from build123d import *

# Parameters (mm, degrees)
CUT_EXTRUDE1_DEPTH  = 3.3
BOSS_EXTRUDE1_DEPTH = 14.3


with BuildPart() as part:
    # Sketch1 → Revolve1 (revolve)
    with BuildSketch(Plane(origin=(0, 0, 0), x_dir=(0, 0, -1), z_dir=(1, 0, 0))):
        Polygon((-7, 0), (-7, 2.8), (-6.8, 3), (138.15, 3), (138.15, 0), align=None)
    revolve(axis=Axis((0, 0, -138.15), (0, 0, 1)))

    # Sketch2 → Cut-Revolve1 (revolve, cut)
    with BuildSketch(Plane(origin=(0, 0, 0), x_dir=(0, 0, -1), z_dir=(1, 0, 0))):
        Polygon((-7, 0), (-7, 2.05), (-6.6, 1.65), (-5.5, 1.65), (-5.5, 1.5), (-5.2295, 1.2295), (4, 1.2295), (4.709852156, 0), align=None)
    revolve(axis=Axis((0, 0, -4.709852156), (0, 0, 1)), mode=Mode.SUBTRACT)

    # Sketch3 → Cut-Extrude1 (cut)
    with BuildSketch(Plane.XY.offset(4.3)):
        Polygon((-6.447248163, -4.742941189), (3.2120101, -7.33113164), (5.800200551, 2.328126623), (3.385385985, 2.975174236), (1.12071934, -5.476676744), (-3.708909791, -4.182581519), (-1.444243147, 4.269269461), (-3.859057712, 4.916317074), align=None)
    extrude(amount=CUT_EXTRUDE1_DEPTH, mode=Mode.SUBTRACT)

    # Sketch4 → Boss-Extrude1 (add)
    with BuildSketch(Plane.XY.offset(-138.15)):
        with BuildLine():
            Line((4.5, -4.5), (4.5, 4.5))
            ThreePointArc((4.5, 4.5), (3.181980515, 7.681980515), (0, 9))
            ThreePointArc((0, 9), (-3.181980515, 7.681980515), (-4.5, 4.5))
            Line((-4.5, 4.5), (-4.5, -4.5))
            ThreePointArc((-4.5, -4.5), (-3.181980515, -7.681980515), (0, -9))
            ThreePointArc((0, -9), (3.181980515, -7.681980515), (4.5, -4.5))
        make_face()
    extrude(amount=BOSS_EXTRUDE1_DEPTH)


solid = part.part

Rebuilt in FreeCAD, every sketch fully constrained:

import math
import FreeCAD as App
import Part
import Sketcher
Q = App.Units.Quantity


def add_polygon(sketch, points):
    """Adds a closed chain of lines whose ends are joined by coincident constraints."""
    first, n = sketch.GeometryCount, len(points)
    for a, b in zip(points, points[1:] + points[:1]):
        sketch.addGeometry(Part.LineSegment(App.Vector(*a, 0), App.Vector(*b, 0)), False)
    for i in range(n):
        sketch.addConstraint(Sketcher.Constraint("Coincident", first + i, 2, first + (i + 1) % n, 1))

doc = App.newDocument("Part")
params = doc.addObject("Spreadsheet::Sheet", "Params")
for row, (alias, value) in enumerate([
    ("sketch1_width", "3 mm"),
    ("sketch1_width2", "2.8 mm"),
    ("sketch1_height", "145.15 mm"),
    ("revolution_angle", "360 deg"),
    ("sketch2_height", "1.1 mm"),
    ("sketch2_width", "2.05 mm"),
    ("sketch2_width2", "0.15 mm"),
    ("groove_angle", "360 deg"),
    ("sketch3_length", "10 mm"),
    ("sketch3_length2", "5 mm"),
    ("sketch3_length3", "8.75 mm"),
    ("pocket1_length", "3.3 mm"),
    ("sketch4_radius", "4.5 mm"),
    ("sketch4_height", "9 mm"),
    ("pad1_length", "14.3 mm"),
], start=1):
    params.set(f"A{row}", alias)
    params.set(f"B{row}", "=" + value)
    params.setAlias(f"B{row}", alias)

body = doc.addObject("PartDesign::Body", "Body")

# Sketch on YZ plane
sketch1 = body.newObject("Sketcher::SketchObject", "Sketch")
sketch1.AttachmentSupport = (doc.getObject("YZ_Plane"), [""])
sketch1.MapMode = "FlatFace"
add_polygon(sketch1, [(2.8, 7), (0, 7), (0, -138.15), (3, -138.15), (3, 6.8)])  # lines 0-4
sketch1.addConstraint(Sketcher.Constraint("Horizontal", 0))
sketch1.addConstraint(Sketcher.Constraint("Vertical", 1))
sketch1.addConstraint(Sketcher.Constraint("Horizontal", 2))
sketch1.addConstraint(Sketcher.Constraint("Vertical", 3))
sketch1.addConstraint(Sketcher.Constraint("PointOnObject", 0, 2, -2))
sketch1.addConstraint(Sketcher.Constraint("DistanceX", 2, 1, 2, 2, 3.0))
sketch1.addConstraint(Sketcher.Constraint("Angle", 4, Q("135 deg")))
sketch1.addConstraint(Sketcher.Constraint("DistanceX", 0, 2, 0, 1, 2.8))
sketch1.addConstraint(Sketcher.Constraint("DistanceY", -1, 1, 0, 2, 7.0))
sketch1.addConstraint(Sketcher.Constraint("DistanceY", 1, 2, 1, 1, 145.15))
sketch1.setExpression("Constraints[10]", "Params.sketch1_width")
sketch1.setExpression("Constraints[12]", "Params.sketch1_width2")
sketch1.setExpression("Constraints[14]", "Params.sketch1_height")
revolution = body.newObject("PartDesign::Revolution", "Revolution")
revolution.Profile = sketch1
revolution.ReferenceAxis = (sketch1, ["V_Axis"])
revolution.setExpression("Angle", "Params.revolution_angle")

# Sketch on YZ plane
sketch2 = body.newObject("Sketcher::SketchObject", "Sketch001")
sketch2.AttachmentSupport = (doc.getObject("YZ_Plane"), [""])
sketch2.MapMode = "FlatFace"
add_polygon(sketch2, [(2.05, 7), (0, 7), (0, -4.71), (1.23, -4), (1.23, 5.23), (1.5, 5.5), (1.65, 5.5), (1.65, 6.6)])  # lines 0-7
sketch2.addConstraint(Sketcher.Constraint("Horizontal", 0))
sketch2.addConstraint(Sketcher.Constraint("Vertical", 1))
sketch2.addConstraint(Sketcher.Constraint("Vertical", 3))
sketch2.addConstraint(Sketcher.Constraint("Horizontal", 5))
sketch2.addConstraint(Sketcher.Constraint("Vertical", 6))
sketch2.addConstraint(Sketcher.Constraint("PointOnObject", 0, 2, -2))
sketch2.addConstraint(Sketcher.Constraint("Parallel", 4, 7))
sketch2.addConstraint(Sketcher.Constraint("Angle", 2, Q("30 deg")))
sketch2.addConstraint(Sketcher.Constraint("Angle", 4, Q("45 deg")))
sketch2.addConstraint(Sketcher.Constraint("DistanceY", 6, 1, 6, 2, 1.1))
sketch2.addConstraint(Sketcher.Constraint("DistanceY", -1, 1, 0, 2, 7.0))
sketch2.addConstraint(Sketcher.Constraint("DistanceY", 2, 2, -1, 1, 4.0))
sketch2.addConstraint(Sketcher.Constraint("DistanceX", 0, 2, 0, 1, 2.05))
sketch2.addConstraint(Sketcher.Constraint("DistanceX", 5, 1, 5, 2, 0.15))
sketch2.addConstraint(Sketcher.Constraint("DistanceX", -1, 1, 4, 2, 1.5))
sketch2.addConstraint(Sketcher.Constraint("DistanceY", 3, 1, 3, 2, 9.2295))
sketch2.setExpression("Constraints[17]", "Params.sketch2_height")
sketch2.setExpression("Constraints[20]", "Params.sketch2_width")
sketch2.setExpression("Constraints[21]", "Params.sketch2_width2")
groove = body.newObject("PartDesign::Groove", "Groove")
groove.Profile = sketch2
groove.ReferenceAxis = (sketch2, ["V_Axis"])
groove.setExpression("Angle", "Params.groove_angle")

# Sketch on XY plane
sketch3 = body.newObject("Sketcher::SketchObject", "Sketch002")
sketch3.AttachmentSupport = (doc.getObject("XY_Plane"), [""])
sketch3.MapMode = "FlatFace"
sketch3.AttachmentOffset = App.Placement(App.Vector(0, 0, 4.3), App.Rotation())
add_polygon(sketch3, [(-6.4, -4.7), (3.2, -7.3), (5.8, 2.3), (3.4, 3), (1.1, -5.5), (-3.7, -4.2), (-1.4, 4.3), (-3.9, 4.9)])  # lines 0-7
sketch3.addConstraint(Sketcher.Constraint("Perpendicular", 0, 1))
sketch3.addConstraint(Sketcher.Constraint("Perpendicular", 1, 2))
sketch3.addConstraint(Sketcher.Constraint("Perpendicular", 2, 3))
sketch3.addConstraint(Sketcher.Constraint("Perpendicular", 3, 4))
sketch3.addConstraint(Sketcher.Constraint("Perpendicular", 4, 5))
sketch3.addConstraint(Sketcher.Constraint("Perpendicular", 5, 6))
sketch3.addConstraint(Sketcher.Constraint("Perpendicular", 6, 7))
sketch3.addConstraint(Sketcher.Constraint("Equal", 0, 1))
sketch3.addConstraint(Sketcher.Constraint("Equal", 3, 5))
sketch3.addConstraint(Sketcher.Constraint("Equal", 2, 6))
sketch3.addConstraint(Sketcher.Constraint("Angle", 0, Q("-15 deg")))
sketch3.addConstraint(Sketcher.Constraint("Distance", 0, 10.0))
sketch3.addConstraint(Sketcher.Constraint("Distance", 4, 5.0))
sketch3.addConstraint(Sketcher.Constraint("Distance", 3, 8.75))
sketch3.addConstraint(Sketcher.Constraint("DistanceX", -1, 1, 1, 2, 5.800201))
sketch3.addConstraint(Sketcher.Constraint("DistanceY", 0, 2, -1, 1, 7.331132))
sketch3.setExpression("Constraints[19]", "Params.sketch3_length")
sketch3.setExpression("Constraints[20]", "Params.sketch3_length2")
sketch3.setExpression("Constraints[21]", "Params.sketch3_length3")
pocket1 = body.newObject("PartDesign::Pocket", "Pocket")
pocket1.Profile = sketch3
pocket1.setExpression("Length", "Params.pocket1_length")
pocket1.Reversed = True

# Sketch on XY plane
sketch4 = body.newObject("Sketcher::SketchObject", "Sketch003")
sketch4.AttachmentSupport = (doc.getObject("XY_Plane"), [""])
sketch4.MapMode = "FlatFace"
sketch4.AttachmentOffset = App.Placement(App.Vector(0, 0, -138.15), App.Rotation())
sketch4.addGeometry(Part.LineSegment(App.Vector(4.5, -4.5, 0), App.Vector(4.5, 4.5, 0)), False)
sketch4.addGeometry(Part.ArcOfCircle(Part.Circle(App.Vector(0, 4.5, 0), App.Vector(0, 0, 1), 4.5), math.radians(0), math.radians(90)), False)
sketch4.addGeometry(Part.ArcOfCircle(Part.Circle(App.Vector(0, 4.5, 0), App.Vector(0, 0, 1), 4.5), math.radians(90), math.radians(180)), False)
sketch4.addGeometry(Part.LineSegment(App.Vector(-4.5, 4.5, 0), App.Vector(-4.5, -4.5, 0)), False)
sketch4.addGeometry(Part.ArcOfCircle(Part.Circle(App.Vector(0, -4.5, 0), App.Vector(0, 0, 1), 4.5), math.radians(-180), math.radians(-90)), False)
sketch4.addGeometry(Part.ArcOfCircle(Part.Circle(App.Vector(0, -4.5, 0), App.Vector(0, 0, 1), 4.5), math.radians(-90), math.radians(0)), False)
sketch4.addConstraint(Sketcher.Constraint("Tangent", 0, 2, 1, 1))
sketch4.addConstraint(Sketcher.Constraint("Tangent", 1, 2, 2, 1))
sketch4.addConstraint(Sketcher.Constraint("Tangent", 2, 2, 3, 1))
sketch4.addConstraint(Sketcher.Constraint("Tangent", 3, 2, 4, 1))
sketch4.addConstraint(Sketcher.Constraint("Tangent", 4, 2, 5, 1))
sketch4.addConstraint(Sketcher.Constraint("Tangent", 5, 2, 0, 1))
sketch4.addConstraint(Sketcher.Constraint("Vertical", 0))
sketch4.addConstraint(Sketcher.Constraint("Vertical", 3))
sketch4.addConstraint(Sketcher.Constraint("Equal", 1, 2))
sketch4.addConstraint(Sketcher.Constraint("Equal", 2, 4))
sketch4.addConstraint(Sketcher.Constraint("Symmetric", 1, 3, 4, 3, -1, 1))
sketch4.addConstraint(Sketcher.Constraint("PointOnObject", 1, 2, -2))
sketch4.addConstraint(Sketcher.Constraint("PointOnObject", 4, 2, -2))
sketch4.addConstraint(Sketcher.Constraint("Radius", 1, 4.5))
sketch4.addConstraint(Sketcher.Constraint("DistanceY", 0, 1, 0, 2, 9.0))
sketch4.setExpression("Constraints[13]", "Params.sketch4_radius")
sketch4.setExpression("Constraints[14]", "Params.sketch4_height")
pad1 = body.newObject("PartDesign::Pad", "Pad")
pad1.Profile = sketch4
pad1.setExpression("Length", "Params.pad1_length")

doc.recompute()
